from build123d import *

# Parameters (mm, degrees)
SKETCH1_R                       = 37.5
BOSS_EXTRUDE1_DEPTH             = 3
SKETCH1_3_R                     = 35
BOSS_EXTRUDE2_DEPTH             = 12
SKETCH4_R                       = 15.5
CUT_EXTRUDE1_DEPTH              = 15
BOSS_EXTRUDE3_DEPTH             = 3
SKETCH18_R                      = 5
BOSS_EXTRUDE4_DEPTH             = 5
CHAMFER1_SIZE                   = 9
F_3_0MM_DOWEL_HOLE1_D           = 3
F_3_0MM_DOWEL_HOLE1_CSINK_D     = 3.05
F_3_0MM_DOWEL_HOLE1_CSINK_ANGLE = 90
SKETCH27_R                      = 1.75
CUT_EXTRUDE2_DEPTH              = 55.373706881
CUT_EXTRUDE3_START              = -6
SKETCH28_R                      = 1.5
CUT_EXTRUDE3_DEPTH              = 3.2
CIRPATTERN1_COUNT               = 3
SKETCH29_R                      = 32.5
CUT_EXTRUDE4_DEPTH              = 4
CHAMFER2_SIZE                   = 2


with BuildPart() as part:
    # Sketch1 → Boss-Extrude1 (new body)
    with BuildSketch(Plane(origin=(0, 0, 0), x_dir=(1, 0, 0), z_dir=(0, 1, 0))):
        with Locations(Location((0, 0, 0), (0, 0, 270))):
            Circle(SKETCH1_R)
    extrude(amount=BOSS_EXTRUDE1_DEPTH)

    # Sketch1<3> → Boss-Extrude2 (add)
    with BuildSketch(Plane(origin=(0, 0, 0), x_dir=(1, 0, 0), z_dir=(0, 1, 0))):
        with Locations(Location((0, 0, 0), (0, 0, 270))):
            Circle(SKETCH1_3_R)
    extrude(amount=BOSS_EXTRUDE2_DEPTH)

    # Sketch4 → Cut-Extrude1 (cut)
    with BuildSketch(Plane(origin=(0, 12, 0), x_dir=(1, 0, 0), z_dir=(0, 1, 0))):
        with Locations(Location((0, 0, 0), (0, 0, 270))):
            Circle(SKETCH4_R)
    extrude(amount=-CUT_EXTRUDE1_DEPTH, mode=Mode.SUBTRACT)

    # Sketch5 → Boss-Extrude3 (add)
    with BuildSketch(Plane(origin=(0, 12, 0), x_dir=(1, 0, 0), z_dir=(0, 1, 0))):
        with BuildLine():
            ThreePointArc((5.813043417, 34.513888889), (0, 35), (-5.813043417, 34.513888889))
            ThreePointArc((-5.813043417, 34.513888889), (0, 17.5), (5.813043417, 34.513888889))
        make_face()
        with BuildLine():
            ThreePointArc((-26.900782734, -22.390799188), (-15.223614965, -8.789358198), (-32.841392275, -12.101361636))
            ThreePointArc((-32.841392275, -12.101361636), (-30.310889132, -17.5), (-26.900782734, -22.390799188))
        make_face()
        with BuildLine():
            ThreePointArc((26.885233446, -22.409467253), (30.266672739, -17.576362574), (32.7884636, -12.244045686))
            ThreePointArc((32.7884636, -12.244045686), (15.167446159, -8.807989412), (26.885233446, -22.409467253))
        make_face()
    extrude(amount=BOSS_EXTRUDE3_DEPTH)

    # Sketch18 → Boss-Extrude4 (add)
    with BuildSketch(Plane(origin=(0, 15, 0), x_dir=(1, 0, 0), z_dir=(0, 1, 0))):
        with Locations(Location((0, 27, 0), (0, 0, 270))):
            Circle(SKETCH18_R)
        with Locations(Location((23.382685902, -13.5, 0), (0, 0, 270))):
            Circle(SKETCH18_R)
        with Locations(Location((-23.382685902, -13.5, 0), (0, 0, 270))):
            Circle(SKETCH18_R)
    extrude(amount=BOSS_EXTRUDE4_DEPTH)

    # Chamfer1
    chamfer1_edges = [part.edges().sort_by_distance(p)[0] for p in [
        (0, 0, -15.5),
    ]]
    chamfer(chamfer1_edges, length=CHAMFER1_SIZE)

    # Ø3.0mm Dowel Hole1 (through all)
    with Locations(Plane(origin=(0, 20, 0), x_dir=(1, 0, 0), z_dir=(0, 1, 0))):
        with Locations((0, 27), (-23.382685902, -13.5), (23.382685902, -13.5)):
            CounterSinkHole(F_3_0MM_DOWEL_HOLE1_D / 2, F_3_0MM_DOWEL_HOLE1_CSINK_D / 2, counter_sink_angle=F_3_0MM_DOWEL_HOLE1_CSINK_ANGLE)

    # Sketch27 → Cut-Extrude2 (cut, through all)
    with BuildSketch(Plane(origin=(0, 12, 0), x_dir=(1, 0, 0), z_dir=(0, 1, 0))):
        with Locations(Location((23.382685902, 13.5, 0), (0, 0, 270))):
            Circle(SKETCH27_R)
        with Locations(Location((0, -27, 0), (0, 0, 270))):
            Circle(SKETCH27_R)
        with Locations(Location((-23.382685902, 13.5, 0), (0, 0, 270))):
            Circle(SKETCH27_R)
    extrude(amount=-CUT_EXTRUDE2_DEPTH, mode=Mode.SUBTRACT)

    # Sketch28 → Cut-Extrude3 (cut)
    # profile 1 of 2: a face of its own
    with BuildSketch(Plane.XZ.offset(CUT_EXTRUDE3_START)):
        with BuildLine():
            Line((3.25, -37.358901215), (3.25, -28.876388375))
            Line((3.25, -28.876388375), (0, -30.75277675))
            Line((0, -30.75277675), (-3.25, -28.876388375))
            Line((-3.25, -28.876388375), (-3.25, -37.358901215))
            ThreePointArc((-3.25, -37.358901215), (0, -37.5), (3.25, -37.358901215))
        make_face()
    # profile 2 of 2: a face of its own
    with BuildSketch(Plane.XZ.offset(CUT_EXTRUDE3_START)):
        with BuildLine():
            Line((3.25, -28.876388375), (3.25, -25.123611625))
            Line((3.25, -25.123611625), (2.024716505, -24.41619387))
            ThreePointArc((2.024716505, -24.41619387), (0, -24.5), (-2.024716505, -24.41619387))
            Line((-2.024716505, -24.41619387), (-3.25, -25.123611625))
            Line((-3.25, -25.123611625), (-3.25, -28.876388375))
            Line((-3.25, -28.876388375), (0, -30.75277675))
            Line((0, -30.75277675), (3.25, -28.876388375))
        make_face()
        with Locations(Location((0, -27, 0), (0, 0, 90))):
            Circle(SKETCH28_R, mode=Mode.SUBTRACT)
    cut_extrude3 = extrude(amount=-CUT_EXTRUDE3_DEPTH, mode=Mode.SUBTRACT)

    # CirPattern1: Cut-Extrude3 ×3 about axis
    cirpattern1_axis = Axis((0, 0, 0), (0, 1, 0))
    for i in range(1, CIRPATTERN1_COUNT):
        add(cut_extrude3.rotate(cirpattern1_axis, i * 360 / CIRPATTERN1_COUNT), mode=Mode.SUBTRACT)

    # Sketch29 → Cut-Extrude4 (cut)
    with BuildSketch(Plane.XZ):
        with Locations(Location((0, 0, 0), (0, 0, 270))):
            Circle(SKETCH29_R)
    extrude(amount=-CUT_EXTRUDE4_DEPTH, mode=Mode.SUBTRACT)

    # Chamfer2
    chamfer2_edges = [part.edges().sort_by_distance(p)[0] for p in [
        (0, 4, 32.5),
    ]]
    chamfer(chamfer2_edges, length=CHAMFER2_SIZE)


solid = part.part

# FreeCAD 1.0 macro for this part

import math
import FreeCAD as App
import Part
import Sketcher
Q = App.Units.Quantity


def edges_at(feature, points):
    """Names of the edges that pass closest to the given points."""
    edges = feature.Shape.Edges
    near = lambda p: min(range(len(edges)), key=lambda i: edges[i].distToShape(Part.Vertex(*p))[0])
    return sorted({f"Edge{near(p) + 1}" for p in points})

doc = App.newDocument("Part")
body = doc.addObject("PartDesign::Body", "Body")

# Sketch on XZ plane
sketch1 = body.newObject("Sketcher::SketchObject", "Sketch")
sketch1.AttachmentSupport = (doc.getObject("XZ_Plane"), [""])
sketch1.MapMode = "FlatFace"
sketch1.addGeometry(Part.Circle(App.Vector(0, 0, 0), App.Vector(0, 0, 1), 38), False)
sketch1.addConstraint(Sketcher.Constraint("Coincident", 0, 3, -1, 1))
sketch1.addConstraint(Sketcher.Constraint("Diameter", 0, 75.0))
pad1 = body.newObject("PartDesign::Pad", "Pad")
pad1.Profile = sketch1
pad1.Length = 3
pad1.Reversed = True

# Sketch on XZ plane
sketch2 = body.newObject("Sketcher::SketchObject", "Sketch001")
sketch2.AttachmentSupport = (doc.getObject("XZ_Plane"), [""])
sketch2.MapMode = "FlatFace"
sketch2.addGeometry(Part.Circle(App.Vector(0, 0, 0), App.Vector(0, 0, 1), 35), False)
sketch2.addConstraint(Sketcher.Constraint("Coincident", 0, 3, -1, 1))
sketch2.addConstraint(Sketcher.Constraint("Diameter", 0, 70.0))
pad2 = body.newObject("PartDesign::Pad", "Pad001")
pad2.Profile = sketch2
pad2.Length = 12
pad2.Reversed = True

# Sketch on XZ plane
sketch3 = body.newObject("Sketcher::SketchObject", "Sketch002")
sketch3.AttachmentSupport = (doc.getObject("XZ_Plane"), [""])
sketch3.MapMode = "FlatFace"
sketch3.AttachmentOffset = App.Placement(App.Vector(0, 0, -12), App.Rotation())
sketch3.addGeometry(Part.Circle(App.Vector(0, 0, 0), App.Vector(0, 0, 1), 16), False)
sketch3.addConstraint(Sketcher.Constraint("Coincident", 0, 3, -1, 1))
sketch3.addConstraint(Sketcher.Constraint("Diameter", 0, 31.0))
pocket1 = body.newObject("PartDesign::Pocket", "Pocket")
pocket1.Profile = sketch3
pocket1.Length = 15
pocket1.Reversed = True

# Sketch on XZ plane
sketch4 = body.newObject("Sketcher::SketchObject", "Sketch003")
sketch4.AttachmentSupport = (doc.getObject("XZ_Plane"), [""])
sketch4.MapMode = "FlatFace"
sketch4.AttachmentOffset = App.Placement(App.Vector(0, 0, -12), App.Rotation())
sketch4.addGeometry(Part.ArcOfCircle(Part.Circle(App.Vector(0, 0, 0), App.Vector(0, 0, 1), 35), math.radians(-99.56), math.radians(-80.44)), False)
sketch4.addGeometry(Part.ArcOfCircle(Part.Circle(App.Vector(0, -27, 0), App.Vector(0, 0, 1), 10), math.radians(-52), math.radians(232)), False)
sketch4.addGeometry(Part.ArcOfCircle(Part.Circle(App.Vector(-23, 14, 0), App.Vector(0, 0, 1), 10), math.radians(-171), math.radians(111)), False)
sketch4.addGeometry(Part.ArcOfCircle(Part.Circle(App.Vector(0, 0, 0), App.Vector(0, 0, 1), 35), math.radians(140.23), math.radians(159.77)), False)
sketch4.addGeometry(Part.ArcOfCircle(Part.Circle(App.Vector(0, 0, 0), App.Vector(0, 0, 1), 35), math.radians(20.48), math.radians(39.81)), False)
sketch4.addGeometry(Part.ArcOfCircle(Part.Circle(App.Vector(23, 14, 0), App.Vector(0, 0, 1), 10), math.radians(68), math.radians(352)), False)
sketch4.addConstraint(Sketcher.Constraint("Coincident", 0, 1, 1, 2))
sketch4.addConstraint(Sketcher.Constraint("Coincident", 1, 1, 0, 2))
sketch4.addConstraint(Sketcher.Constraint("Coincident", 2, 1, 3, 2))
sketch4.addConstraint(Sketcher.Constraint("Coincident", 3, 1, 2, 2))
sketch4.addConstraint(Sketcher.Constraint("Coincident", 4, 1, 5, 2))
sketch4.addConstraint(Sketcher.Constraint("Coincident", 5, 1, 4, 2))
sketch4.addConstraint(Sketcher.Constraint("Coincident", 0, 3, -1, 1))
sketch4.addConstraint(Sketcher.Constraint("Coincident", 3, 3, -1, 1))
sketch4.addConstraint(Sketcher.Constraint("Coincident", 4, 3, -1, 1))
sketch4.addConstraint(Sketcher.Constraint("Equal", 1, 2))
sketch4.addConstraint(Sketcher.Constraint("Equal", 0, 3))
sketch4.addConstraint(Sketcher.Constraint("Equal", 3, 4))
sketch4.addConstraint(Sketcher.Constraint("Equal", 2, 5))
sketch4.addConstraint(Sketcher.Constraint("PointOnObject", 1, 3, -2))
sketch4.addConstraint(Sketcher.Constraint("Radius", 0, 35.0))
sketch4.addConstraint(Sketcher.Constraint("Radius", 1, 9.5))
sketch4.addConstraint(Sketcher.Constraint("DistanceY", 1, 3, -1, 1, 27.0))
sketch4.addConstraint(Sketcher.Constraint("DistanceY", -1, 1, 3, 1, 22.390799))
sketch4.addConstraint(Sketcher.Constraint("DistanceY", -1, 1, 2, 3, 13.539358))
sketch4.addConstraint(Sketcher.Constraint("DistanceY", 2, 3, 5, 3, 0.039358))
sketch4.addConstraint(Sketcher.Constraint("DistanceY", 4, 1, 5, 3, 1.334671))
pad3 = body.newObject("PartDesign::Pad", "Pad002")
pad3.Profile = sketch4
pad3.Length = 3
pad3.Reversed = True

# Sketch on XZ plane
sketch5 = body.newObject("Sketcher::SketchObject", "Sketch004")
sketch5.AttachmentSupport = (doc.getObject("XZ_Plane"), [""])
sketch5.MapMode = "FlatFace"
sketch5.AttachmentOffset = App.Placement(App.Vector(0, 0, -15), App.Rotation())
sketch5.addGeometry(Part.Circle(App.Vector(0, -27, 0), App.Vector(0, 0, 1), 5), False)
sketch5.addGeometry(Part.Circle(App.Vector(23, 14, 0), App.Vector(0, 0, 1), 5), False)
sketch5.addGeometry(Part.Circle(App.Vector(-23, 14, 0), App.Vector(0, 0, 1), 5), False)
sketch5.addConstraint(Sketcher.Constraint("Equal", 0, 1))
sketch5.addConstraint(Sketcher.Constraint("Equal", 1, 2))
sketch5.addConstraint(Sketcher.Constraint("Symmetric", 1, 3, 2, 3, -2))
sketch5.addConstraint(Sketcher.Constraint("PointOnObject", 0, 3, -2))
sketch5.addConstraint(Sketcher.Constraint("Diameter", 0, 10.0))
sketch5.addConstraint(Sketcher.Constraint("DistanceY", 0, 3, -1, 1, 27.0))
sketch5.addConstraint(Sketcher.Constraint("DistanceY", -1, 1, 1, 3, 13.5))
sketch5.addConstraint(Sketcher.Constraint("DistanceX", 2, 3, 1, 3, 46.765372))
pad4 = body.newObject("PartDesign::Pad", "Pad003")
pad4.Profile = sketch5
pad4.Length = 5
pad4.Reversed = True
doc.recompute()

chamfer = body.newObject("PartDesign::Chamfer", "Chamfer")
chamfer.Base = (pad4, edges_at(pad4, [(0, 0, -15.5)]))
chamfer.Size = 9

# Sketch on XZ plane
sketch6 = body.newObject("Sketcher::SketchObject", "Sketch005")
sketch6.AttachmentSupport = (doc.getObject("XZ_Plane"), [""])
sketch6.MapMode = "FlatFace"
sketch6.AttachmentOffset = App.Placement(App.Vector(0, 0, -20), App.Rotation())
sketch6.addGeometry(Part.Circle(App.Vector(0, -27, 0), App.Vector(0, 0, 1), 1.5), False)
sketch6.addGeometry(Part.Circle(App.Vector(-23.4, 13.5, 0), App.Vector(0, 0, 1), 1.5), False)
sketch6.addGeometry(Part.Circle(App.Vector(23.4, 13.5, 0), App.Vector(0, 0, 1), 1.5), False)
sketch6.addConstraint(Sketcher.Constraint("Equal", 0, 1))
sketch6.addConstraint(Sketcher.Constraint("Equal", 1, 2))
sketch6.addConstraint(Sketcher.Constraint("Symmetric", 1, 3, 2, 3, -2))
sketch6.addConstraint(Sketcher.Constraint("PointOnObject", 0, 3, -2))
sketch6.addConstraint(Sketcher.Constraint("Diameter", 0, 3.0))
sketch6.addConstraint(Sketcher.Constraint("DistanceY", 0, 3, -1, 1, 27.0))
sketch6.addConstraint(Sketcher.Constraint("DistanceY", -1, 1, 1, 3, 13.5))
sketch6.addConstraint(Sketcher.Constraint("DistanceX", 1, 3, 2, 3, 46.765372))
doc.recompute()
hole = body.newObject("PartDesign::Hole", "Hole")
hole.Profile = sketch6
hole.ThreadType = "None"
hole.Diameter = 3
hole.DepthType = "ThroughAll"
hole.HoleCutType = "Countersink"
hole.HoleCutDiameter = 3.05
hole.HoleCutCountersinkAngle = 90
hole.Reversed = True

# Sketch on XZ plane
sketch7 = body.newObject("Sketcher::SketchObject", "Sketch006")
sketch7.AttachmentSupport = (doc.getObject("XZ_Plane"), [""])
sketch7.MapMode = "FlatFace"
sketch7.AttachmentOffset = App.Placement(App.Vector(0, 0, -12), App.Rotation())
sketch7.addGeometry(Part.Circle(App.Vector(23.4, -13.5, 0), App.Vector(0, 0, 1), 1.8), False)
sketch7.addGeometry(Part.Circle(App.Vector(0, 27, 0), App.Vector(0, 0, 1), 1.8), False)
sketch7.addGeometry(Part.Circle(App.Vector(-23.4, -13.5, 0), App.Vector(0, 0, 1), 1.8), False)
sketch7.addConstraint(Sketcher.Constraint("Equal", 0, 1))
sketch7.addConstraint(Sketcher.Constraint("Equal", 1, 2))
sketch7.addConstraint(Sketcher.Constraint("Symmetric", 0, 3, 2, 3, -2))
sketch7.addConstraint(Sketcher.Constraint("PointOnObject", 1, 3, -2))
sketch7.addConstraint(Sketcher.Constraint("Diameter", 0, 3.5))
sketch7.addConstraint(Sketcher.Constraint("DistanceY", -1, 1, 1, 3, 27.0))
sketch7.addConstraint(Sketcher.Constraint("DistanceY", 0, 3, -1, 1, 13.5))
sketch7.addConstraint(Sketcher.Constraint("DistanceX", 2, 3, 0, 3, 46.765372))
pocket2 = body.newObject("PartDesign::Pocket", "Pocket001")
pocket2.Profile = sketch7
pocket2.Type = "ThroughAll"
pocket2.Reversed = True

# Sketch on XZ plane
sketch8 = body.newObject("Sketcher::SketchObject", "Sketch007")
sketch8.AttachmentSupport = (doc.getObject("XZ_Plane"), [""])
sketch8.MapMode = "FlatFace"
sketch8.AttachmentOffset = App.Placement(App.Vector(0, 0, -6), App.Rotation())
sketch8.addGeometry(Part.LineSegment(App.Vector(3.2, -37.4, 0), App.Vector(3.2, -25.1, 0)), False)
sketch8.addGeometry(Part.LineSegment(App.Vector(3.2, -25.1, 0), App.Vector(2, -24.4, 0)), False)
sketch8.addGeometry(Part.ArcOfCircle(Part.Circle(App.Vector(0, 0, 0), App.Vector(0, 0, 1), 24.5), math.radians(-94.74), math.radians(-85.26)), False)
sketch8.addGeometry(Part.LineSegment(App.Vector(-2, -24.4, 0), App.Vector(-3.2, -25.1, 0)), False)
sketch8.addGeometry(Part.LineSegment(App.Vector(-3.2, -25.1, 0), App.Vector(-3.2, -37.4, 0)), False)
sketch8.addGeometry(Part.ArcOfCircle(Part.Circle(App.Vector(0, 0, 0), App.Vector(0, 0, 1), 37.5), math.radians(-94.97), math.radians(-85.03)), False)
sketch8.addGeometry(Part.Circle(App.Vector(0, -27, 0), App.Vector(0, 0, 1), 1.5), False)
sketch8.addConstraint(Sketcher.Constraint("Coincident", 0, 2, 1, 1))
sketch8.addConstraint(Sketcher.Constraint("Coincident", 1, 2, 2, 2))
sketch8.addConstraint(Sketcher.Constraint("Coincident", 2, 1, 3, 1))
sketch8.addConstraint(Sketcher.Constraint("Coincident", 3, 2, 4, 1))
sketch8.addConstraint(Sketcher.Constraint("Coincident", 4, 2, 5, 1))
sketch8.addConstraint(Sketcher.Constraint("Coincident", 5, 2, 0, 1))
sketch8.addConstraint(Sketcher.Constraint("Vertical", 0))
sketch8.addConstraint(Sketcher.Constraint("Vertical", 4))
sketch8.addConstraint(Sketcher.Constraint("Coincident", 2, 3, -1, 1))
sketch8.addConstraint(Sketcher.Constraint("Coincident", 5, 3, -1, 1))
sketch8.addConstraint(Sketcher.Constraint("Symmetric", 0, 2, 3, 2, -2))
sketch8.addConstraint(Sketcher.Constraint("PointOnObject", 6, 3, -2))
sketch8.addConstraint(Sketcher.Constraint("Horizontal", 1, 2, 2, 1))
sketch8.addConstraint(Sketcher.Constraint("Diameter", 6, 3.0))
sketch8.addConstraint(Sketcher.Constraint("Radius", 2, 24.5))
sketch8.addConstraint(Sketcher.Constraint("Radius", 5, 37.5))
sketch8.addConstraint(Sketcher.Constraint("Angle", 1, Q("150 deg")))
sketch8.addConstraint(Sketcher.Constraint("DistanceY", 6, 3, -1, 1, 27.0))
sketch8.addConstraint(Sketcher.Constraint("DistanceX", 3, 2, 0, 2, 6.5))
sketch8.addConstraint(Sketcher.Constraint("DistanceY", 0, 1, 0, 2, 12.23529))
pocket3 = body.newObject("PartDesign::Pocket", "Pocket002")
pocket3.Profile = sketch8
pocket3.Length = 3.2
doc.recompute()

polarpattern = body.newObject("PartDesign::PolarPattern", "PolarPattern")
polarpattern.Originals = [pocket3]
polarpattern.Axis = (doc.getObject("Y_Axis"), [""])
polarpattern.Angle = 360
polarpattern.Occurrences = 3
body.Tip = polarpattern

# Sketch on XZ plane
sketch9 = body.newObject("Sketcher::SketchObject", "Sketch008")
sketch9.AttachmentSupport = (doc.getObject("XZ_Plane"), [""])
sketch9.MapMode = "FlatFace"
sketch9.addGeometry(Part.Circle(App.Vector(0, 0, 0), App.Vector(0, 0, 1), 32), False)
sketch9.addConstraint(Sketcher.Constraint("Coincident", 0, 3, -1, 1))
sketch9.addConstraint(Sketcher.Constraint("Diameter", 0, 65.0))
pocket4 = body.newObject("PartDesign::Pocket", "Pocket003")
pocket4.Profile = sketch9
pocket4.Length = 4
doc.recompute()

chamfer2 = body.newObject("PartDesign::Chamfer", "Chamfer001")
chamfer2.Base = (pocket4, edges_at(pocket4, [(0, 4, 32.5)]))
chamfer2.Size = 2

doc.recompute()
